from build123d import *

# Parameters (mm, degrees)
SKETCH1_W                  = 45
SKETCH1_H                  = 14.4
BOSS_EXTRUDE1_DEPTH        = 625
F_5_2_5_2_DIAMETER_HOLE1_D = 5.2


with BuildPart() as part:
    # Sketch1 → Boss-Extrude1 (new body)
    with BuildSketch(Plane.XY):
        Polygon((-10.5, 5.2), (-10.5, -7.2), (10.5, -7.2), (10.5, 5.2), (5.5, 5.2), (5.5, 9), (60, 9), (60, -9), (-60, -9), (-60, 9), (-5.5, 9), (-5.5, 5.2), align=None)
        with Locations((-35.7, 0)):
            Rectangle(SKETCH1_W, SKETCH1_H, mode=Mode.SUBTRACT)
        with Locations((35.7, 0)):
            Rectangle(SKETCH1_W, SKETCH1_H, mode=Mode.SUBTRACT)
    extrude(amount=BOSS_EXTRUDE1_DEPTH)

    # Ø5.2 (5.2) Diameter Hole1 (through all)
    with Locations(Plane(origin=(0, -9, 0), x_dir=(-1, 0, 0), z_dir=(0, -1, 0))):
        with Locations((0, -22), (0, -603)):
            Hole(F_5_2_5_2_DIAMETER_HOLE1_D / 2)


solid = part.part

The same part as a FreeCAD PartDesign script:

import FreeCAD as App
import Part
import Sketcher

doc = App.newDocument("Part")
body = doc.addObject("PartDesign::Body", "Body")

sketch1 = body.newObject("Sketcher::SketchObject", "Sketch")
sketch1.AttachmentSupport = (doc.getObject("XY_Plane"), [""])
sketch1.MapMode = "FlatFace"
sketch1.addGeometry([
    Part.LineSegment(App.Vector(-10.5, -7.2, 0), App.Vector(-10.5, 5.2, 0)),
    Part.LineSegment(App.Vector(-10.5, 5.2, 0), App.Vector(-5.5, 5.2, 0)),
    Part.LineSegment(App.Vector(-5.5, 5.2, 0), App.Vector(-5.5, 9, 0)),
    Part.LineSegment(App.Vector(-5.5, 9, 0), App.Vector(-60, 9, 0)),
    Part.LineSegment(App.Vector(-60, 9, 0), App.Vector(-60, -9, 0)),
    Part.LineSegment(App.Vector(-60, -9, 0), App.Vector(60, -9, 0)),
    Part.LineSegment(App.Vector(60, -9, 0), App.Vector(60, 9, 0)),
    Part.LineSegment(App.Vector(60, 9, 0), App.Vector(5.5, 9, 0)),
    Part.LineSegment(App.Vector(5.5, 9, 0), App.Vector(5.5, 5.2, 0)),
    Part.LineSegment(App.Vector(5.5, 5.2, 0), App.Vector(10.5, 5.2, 0)),
    Part.LineSegment(App.Vector(10.5, 5.2, 0), App.Vector(10.5, -7.2, 0)),
    Part.LineSegment(App.Vector(10.5, -7.2, 0), App.Vector(-10.5, -7.2, 0)),
    Part.LineSegment(App.Vector(13.2, -7.2, 0), App.Vector(13.2, 7.2, 0)),
    Part.LineSegment(App.Vector(13.2, 7.2, 0), App.Vector(58.2, 7.2, 0)),
    Part.LineSegment(App.Vector(58.2, 7.2, 0), App.Vector(58.2, -7.2, 0)),
    Part.LineSegment(App.Vector(58.2, -7.2, 0), App.Vector(13.2, -7.2, 0)),
    Part.LineSegment(App.Vector(-58.2, -7.2, 0), App.Vector(-58.2, 7.2, 0)),
    Part.LineSegment(App.Vector(-58.2, 7.2, 0), App.Vector(-13.2, 7.2, 0)),
    Part.LineSegment(App.Vector(-13.2, 7.2, 0), App.Vector(-13.2, -7.2, 0)),
    Part.LineSegment(App.Vector(-13.2, -7.2, 0), App.Vector(-58.2, -7.2, 0)),
], False)
sketch1.addConstraint([
    Sketcher.Constraint("Coincident", 0, 2, 1, 1),
    Sketcher.Constraint("Coincident", 1, 2, 2, 1),
    Sketcher.Constraint("Coincident", 2, 2, 3, 1),
    Sketcher.Constraint("Coincident", 3, 2, 4, 1),
    Sketcher.Constraint("Coincident", 4, 2, 5, 1),
    Sketcher.Constraint("Coincident", 5, 2, 6, 1),
    Sketcher.Constraint("Coincident", 6, 2, 7, 1),
    Sketcher.Constraint("Coincident", 7, 2, 8, 1),
    Sketcher.Constraint("Coincident", 8, 2, 9, 1),
    Sketcher.Constraint("Coincident", 9, 2, 10, 1),
    Sketcher.Constraint("Coincident", 10, 2, 11, 1),
    Sketcher.Constraint("Coincident", 11, 2, 0, 1),
    Sketcher.Constraint("Coincident", 12, 2, 13, 1),
    Sketcher.Constraint("Coincident", 13, 2, 14, 1),
    Sketcher.Constraint("Coincident", 14, 2, 15, 1),
    Sketcher.Constraint("Coincident", 15, 2, 12, 1),
    Sketcher.Constraint("Coincident", 16, 2, 17, 1),
    Sketcher.Constraint("Coincident", 17, 2, 18, 1),
    Sketcher.Constraint("Coincident", 18, 2, 19, 1),
    Sketcher.Constraint("Coincident", 19, 2, 16, 1),
    Sketcher.Constraint("Vertical", 0),
    Sketcher.Constraint("Horizontal", 1),
    Sketcher.Constraint("Vertical", 2),
    Sketcher.Constraint("Horizontal", 3),
    Sketcher.Constraint("Vertical", 4),
    Sketcher.Constraint("Horizontal", 5),
    Sketcher.Constraint("Vertical", 6),
    Sketcher.Constraint("Horizontal", 7),
    Sketcher.Constraint("Vertical", 8),
    Sketcher.Constraint("Horizontal", 9),
    Sketcher.Constraint("Vertical", 10),
    Sketcher.Constraint("Horizontal", 11),
    Sketcher.Constraint("Vertical", 12),
    Sketcher.Constraint("Horizontal", 13),
    Sketcher.Constraint("Vertical", 14),
    Sketcher.Constraint("Horizontal", 15),
    Sketcher.Constraint("Vertical", 16),
    Sketcher.Constraint("Horizontal", 17),
    Sketcher.Constraint("Vertical", 18),
    Sketcher.Constraint("Horizontal", 19),
    Sketcher.Constraint("Symmetric", 3, 2, 5, 2, -1, 1),
    Sketcher.Constraint("Symmetric", 14, 2, 16, 2, -1, 1),
    Sketcher.Constraint("Symmetric", 12, 2, 18, 2, -1, 1),
    Sketcher.Constraint("Symmetric", 2, 2, 7, 2, -2),
    Sketcher.Constraint("Symmetric", 0, 2, 9, 2, -2),
    Sketcher.Constraint("Horizontal", 11, 2, 14, 2),
    Sketcher.Constraint("Horizontal", 13, 2, 16, 2),
    Sketcher.Constraint("DistanceX", 1, 1, 1, 2, 5.0),
    Sketcher.Constraint("DistanceX", 5, 1, 5, 2, 120.0),
    Sketcher.Constraint("DistanceX", 11, 2, 11, 1, 21.0),
    Sketcher.Constraint("DistanceX", 13, 1, 13, 2, 45.0),
    Sketcher.Constraint("DistanceY", 4, 2, 4, 1, 18.0),
    Sketcher.Constraint("DistanceY", 0, 1, 0, 2, 12.4),
    Sketcher.Constraint("DistanceY", 2, 1, 2, 2, 3.8),
    Sketcher.Constraint("DistanceX", -1, 1, 12, 2, 13.2),
])
pad1 = body.newObject("PartDesign::Pad", "Pad")
pad1.Profile = sketch1
pad1.Length = 625

sketch2 = body.newObject("Sketcher::SketchObject", "Sketch001")
sketch2.AttachmentSupport = (doc.getObject("XZ_Plane"), [""])
sketch2.MapMode = "FlatFace"
sketch2.AttachmentOffset = App.Placement(App.Vector(0, 0, 9), App.Rotation())
sketch2.addGeometry([
    Part.Circle(App.Vector(0, 22, 0), App.Vector(0, 0, 1), 2.6),
    Part.Circle(App.Vector(0, 603, 0), App.Vector(0, 0, 1), 2.6),
], False)
sketch2.addConstraint([
    Sketcher.Constraint("Equal", 0, 1),
    Sketcher.Constraint("PointOnObject", 0, 3, -2),
    Sketcher.Constraint("PointOnObject", 1, 3, -2),
    Sketcher.Constraint("Diameter", 0, 5.2),
    Sketcher.Constraint("DistanceY", -1, 1, 0, 3, 22.0),
    Sketcher.Constraint("DistanceY", -1, 1, 1, 3, 603.0),
])
doc.recompute()
hole = body.newObject("PartDesign::Hole", "Hole")
hole.Profile = sketch2
hole.ThreadType = "None"
hole.Diameter = 5.2
hole.DepthType = "ThroughAll"

doc.recompute()
